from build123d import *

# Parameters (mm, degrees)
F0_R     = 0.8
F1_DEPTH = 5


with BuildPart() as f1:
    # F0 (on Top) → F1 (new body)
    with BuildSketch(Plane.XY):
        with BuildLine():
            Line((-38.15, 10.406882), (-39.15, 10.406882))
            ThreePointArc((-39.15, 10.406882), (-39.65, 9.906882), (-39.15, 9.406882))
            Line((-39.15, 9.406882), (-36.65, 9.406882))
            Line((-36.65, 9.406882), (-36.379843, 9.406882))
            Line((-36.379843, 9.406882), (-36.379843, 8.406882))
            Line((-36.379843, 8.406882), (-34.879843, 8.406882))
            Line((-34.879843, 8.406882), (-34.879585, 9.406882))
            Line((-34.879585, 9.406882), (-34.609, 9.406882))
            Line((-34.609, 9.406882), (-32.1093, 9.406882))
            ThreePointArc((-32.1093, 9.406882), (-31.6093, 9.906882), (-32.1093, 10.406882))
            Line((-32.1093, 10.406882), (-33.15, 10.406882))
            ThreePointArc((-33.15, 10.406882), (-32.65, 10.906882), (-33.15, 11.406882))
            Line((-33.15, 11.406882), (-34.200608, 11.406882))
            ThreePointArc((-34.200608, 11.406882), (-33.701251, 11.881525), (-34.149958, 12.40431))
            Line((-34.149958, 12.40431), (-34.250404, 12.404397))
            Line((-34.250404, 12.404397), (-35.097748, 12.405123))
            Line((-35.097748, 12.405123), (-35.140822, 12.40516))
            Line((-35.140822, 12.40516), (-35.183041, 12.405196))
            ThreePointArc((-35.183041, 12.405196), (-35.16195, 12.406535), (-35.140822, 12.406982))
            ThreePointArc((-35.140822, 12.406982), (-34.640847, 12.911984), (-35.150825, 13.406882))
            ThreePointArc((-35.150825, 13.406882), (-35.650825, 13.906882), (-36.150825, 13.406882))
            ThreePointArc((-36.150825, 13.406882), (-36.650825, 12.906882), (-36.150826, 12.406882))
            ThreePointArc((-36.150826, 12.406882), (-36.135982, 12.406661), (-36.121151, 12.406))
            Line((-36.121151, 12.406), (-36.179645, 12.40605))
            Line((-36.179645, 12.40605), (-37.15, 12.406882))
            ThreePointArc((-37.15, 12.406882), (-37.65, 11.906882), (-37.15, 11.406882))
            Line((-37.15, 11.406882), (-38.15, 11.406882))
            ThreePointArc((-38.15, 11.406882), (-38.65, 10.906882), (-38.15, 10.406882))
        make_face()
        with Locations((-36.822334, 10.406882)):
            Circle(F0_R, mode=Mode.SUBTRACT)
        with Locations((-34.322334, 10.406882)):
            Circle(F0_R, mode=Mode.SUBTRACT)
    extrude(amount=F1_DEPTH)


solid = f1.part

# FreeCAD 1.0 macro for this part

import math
import FreeCAD as App
import Part
import Sketcher
from FreeCAD import Vector

doc = App.newDocument("Part")
body = doc.addObject("PartDesign::Body", "Body")

# Sketch on XY plane
sketch1 = body.newObject("Sketcher::SketchObject", "Sketch")
sketch1.AttachmentSupport = (doc.getObject("XY_Plane"), [""])
sketch1.MapMode = "FlatFace"
sketch1.addGeometry([
    Part.LineSegment(Vector(-38.15, 10.407, 0), Vector(-39.15, 10.407, 0)),  # 0
    Part.ArcOfCircle(Part.Circle(Vector(-39.15, 9.907, 0), Vector(0, 0, 1), 0.5), math.radians(90), math.radians(270)),  # 1
    Part.LineSegment(Vector(-39.15, 9.407, 0), Vector(-36.38, 9.407, 0)),  # 2
    Part.LineSegment(Vector(-36.38, 9.407, 0), Vector(-36.38, 8.407, 0)),  # 3
    Part.LineSegment(Vector(-36.38, 8.407, 0), Vector(-34.88, 8.407, 0)),  # 4
    Part.LineSegment(Vector(-34.88, 8.407, 0), Vector(-34.88, 9.407, 0)),  # 5
    Part.LineSegment(Vector(-34.88, 9.407, 0), Vector(-32.109, 9.407, 0)),  # 6
    Part.ArcOfCircle(Part.Circle(Vector(-32.109, 9.907, 0), Vector(0, 0, 1), 0.5), math.radians(-90), math.radians(90)),  # 7
    Part.LineSegment(Vector(-32.109, 10.407, 0), Vector(-33.15, 10.407, 0)),  # 8
    Part.ArcOfCircle(Part.Circle(Vector(-33.15, 10.907, 0), Vector(0, 0, 1), 0.5), math.radians(-90), math.radians(90)),  # 9
    Part.LineSegment(Vector(-33.15, 11.407, 0), Vector(-34.201, 11.407, 0)),  # 10
    Part.ArcOfCircle(Part.Circle(Vector(-34.201, 11.907, 0), Vector(0, 0, 1), 0.5), math.radians(-90), math.radians(84)),  # 11
    Part.LineSegment(Vector(-34.15, 12.404, 0), Vector(-34.25, 12.404, 0)),  # 12
    Part.LineSegment(Vector(-34.25, 12.404, 0), Vector(-35.098, 12.405, 0)),  # 13
    Part.LineSegment(Vector(-35.098, 12.405, 0), Vector(-35.141, 12.405, 0)),  # 14
    Part.LineSegment(Vector(-35.141, 12.405, 0), Vector(-35.183, 12.405, 0)),  # 15
    Part.ArcOfCircle(Part.Circle(Vector(-35.141, 11.907, 0), Vector(0, 0, 1), 0.5), math.radians(90), math.radians(94.84)),  # 16
    Part.ArcOfCircle(Part.Circle(Vector(-35.141, 12.907, 0), Vector(0, 0, 1), 0.5), math.radians(-90), math.radians(91)),  # 17
    Part.ArcOfCircle(Part.Circle(Vector(-35.651, 13.407, 0), Vector(0, 0, 1), 0.5), math.radians(0), math.radians(180)),  # 18
    Part.ArcOfCircle(Part.Circle(Vector(-36.151, 12.907, 0), Vector(0, 0, 1), 0.5), math.radians(90), math.radians(270)),  # 19
    Part.ArcOfCircle(Part.Circle(Vector(-36.151, 11.906, 0), Vector(0, 0, 1), 0.501), math.radians(86.6), math.radians(90)),  # 20
    Part.LineSegment(Vector(-36.121, 12.406, 0), Vector(-36.18, 12.406, 0)),  # 21
    Part.LineSegment(Vector(-36.18, 12.406, 0), Vector(-37.15, 12.407, 0)),  # 22
    Part.ArcOfCircle(Part.Circle(Vector(-37.15, 11.907, 0), Vector(0, 0, 1), 0.5), math.radians(90), math.radians(270)),  # 23
    Part.LineSegment(Vector(-37.15, 11.407, 0), Vector(-38.15, 11.407, 0)),  # 24
    Part.ArcOfCircle(Part.Circle(Vector(-38.15, 10.907, 0), Vector(0, 0, 1), 0.5), math.radians(90), math.radians(270)),  # 25
    Part.Circle(Vector(-36.822, 10.407, 0), Vector(0, 0, 1), 0.8),  # 26
    Part.Circle(Vector(-34.322, 10.407, 0), Vector(0, 0, 1), 0.8),  # 27
], False)
sketch1.addConstraint([
    Sketcher.Constraint("Tangent", 0, 2, 1, 1),
    Sketcher.Constraint("Tangent", 1, 2, 2, 1),
    Sketcher.Constraint("Coincident", 2, 2, 3, 1),
    Sketcher.Constraint("Coincident", 3, 2, 4, 1),
    Sketcher.Constraint("Coincident", 4, 2, 5, 1),
    Sketcher.Constraint("Coincident", 5, 2, 6, 1),
    Sketcher.Constraint("Tangent", 6, 2, 7, 1),
    Sketcher.Constraint("Tangent", 7, 2, 8, 1),
    Sketcher.Constraint("Tangent", 8, 2, 9, 1),
    Sketcher.Constraint("Tangent", 9, 2, 10, 1),
    Sketcher.Constraint("Tangent", 10, 2, 11, 1),
    Sketcher.Constraint("Coincident", 11, 2, 12, 1),
    Sketcher.Constraint("Coincident", 12, 2, 13, 1),
    Sketcher.Constraint("Coincident", 13, 2, 14, 1),
    Sketcher.Constraint("Coincident", 14, 2, 15, 1),
    Sketcher.Constraint("Coincident", 15, 2, 16, 2),
    Sketcher.Constraint("Coincident", 16, 1, 17, 1),
    Sketcher.Constraint("Coincident", 17, 2, 18, 1),
    Sketcher.Constraint("Coincident", 18, 2, 19, 1),
    Sketcher.Constraint("Coincident", 19, 2, 20, 2),
    Sketcher.Constraint("Coincident", 20, 1, 21, 1),
    Sketcher.Constraint("Coincident", 21, 2, 22, 1),
    Sketcher.Constraint("Coincident", 22, 2, 23, 1),
    Sketcher.Constraint("Tangent", 23, 2, 24, 1),
    Sketcher.Constraint("Tangent", 24, 2, 25, 1),
    Sketcher.Constraint("Tangent", 25, 2, 0, 1),
    Sketcher.Constraint("Horizontal", 0),
    Sketcher.Constraint("Horizontal", 2),
    Sketcher.Constraint("Vertical", 3),
    Sketcher.Constraint("Horizontal", 4),
    Sketcher.Constraint("Horizontal", 6),
    Sketcher.Constraint("Horizontal", 8),
    Sketcher.Constraint("Horizontal", 10),
    Sketcher.Constraint("Horizontal", 24),
    Sketcher.Constraint("Equal", 1, 7),
    Sketcher.Constraint("Equal", 7, 9),
    Sketcher.Constraint("Equal", 9, 11),
    Sketcher.Constraint("Equal", 11, 17),
    Sketcher.Constraint("Equal", 17, 18),
    Sketcher.Constraint("Equal", 18, 19),
    Sketcher.Constraint("Equal", 19, 23),
    Sketcher.Constraint("Equal", 23, 25),
    Sketcher.Constraint("Equal", 26, 27),
    Sketcher.Constraint("Parallel", 14, 22),
    Sketcher.Constraint("Horizontal", 1, 3, 7, 3),
    Sketcher.Constraint("Horizontal", 26, 3, 27, 3),
    Sketcher.Constraint("Horizontal", 27, 3, 0, 2),
    Sketcher.Constraint("Horizontal", 18, 3, 17, 2),
    Sketcher.Constraint("Horizontal", 17, 2, 18, 2),
    Sketcher.Constraint("Horizontal", 19, 2, 22, 2),
    Sketcher.Constraint("Vertical", 17, 3, 14, 2),
    Sketcher.Constraint("Vertical", 14, 2, 16, 1),
    Sketcher.Constraint("Vertical", 19, 3, 18, 2),
    Sketcher.Constraint("Vertical", 18, 2, 19, 2),
    Sketcher.Constraint("Vertical", 23, 3, 22, 2),
    Sketcher.Constraint("Equal", 0, 24),
    Sketcher.Constraint("Equal", 24, 3),
    Sketcher.Constraint("Diameter", 26, 1.6),
    Sketcher.Constraint("Radius", 1, 0.5),
    Sketcher.Constraint("DistanceX", 0, 2, 0, 1, 1.0),
    Sketcher.Constraint("DistanceX", 4, 1, 4, 2, 1.5),
    Sketcher.Constraint("DistanceX", 1, 3, 9, 3, 6.0),
    Sketcher.Constraint("DistanceX", 1, 3, -1, 1, 39.15),
    Sketcher.Constraint("Radius", 16, 0.500251),
    Sketcher.Constraint("DistanceX", 8, 2, 8, 1, 1.0407),
    Sketcher.Constraint("DistanceY", -1, 1, 20, 1, 12.406),
    Sketcher.Constraint("Radius", 20, 0.500678),
    Sketcher.Constraint("DistanceX", 10, 2, 10, 1, 1.050608),
    Sketcher.Constraint("DistanceX", 16, 3, 11, 3, 0.940199),
    Sketcher.Constraint("DistanceY", 11, 3, 17, 3, 1.0001),
    Sketcher.Constraint("DistanceY", 12, 2, 15, 2, 0.000799),
    Sketcher.Constraint("Distance", 15, 0.042219),
    Sketcher.Constraint("DistanceX", 2, 1, 2, 2, 2.770157),
    Sketcher.Constraint("DistanceX", 6, 1, 6, 2, 2.770285),
    Sketcher.Constraint("DistanceY", -1, 1, 11, 3, 11.906882),
    Sketcher.Constraint("DistanceY", -1, 1, 11, 2, 12.40431),
    Sketcher.Constraint("DistanceX", 13, 2, -1, 1, 35.097748),
    Sketcher.Constraint("DistanceY", -1, 1, 14, 2, 12.40516),
    Sketcher.Constraint("DistanceX", 15, 2, -1, 1, 35.183041),
    Sketcher.Constraint("DistanceX", 20, 1, -1, 1, 36.121151),
    Sketcher.Constraint("DistanceY", -1, 1, 21, 2, 12.40605),
    Sketcher.Constraint("DistanceX", 26, 3, 2, 2, 0.442491),
    Sketcher.Constraint("DistanceX", 2, 2, 27, 3, 2.057509),
    Sketcher.Constraint("DistanceX", 17, 3, 12, 2, 0.890418),
    Sketcher.Constraint("DistanceX", 21, 2, 19, 2, 0.028819),
])
pad1 = body.newObject("PartDesign::Pad", "Pad")
pad1.Profile = sketch1
pad1.Length = 5

doc.recompute()
